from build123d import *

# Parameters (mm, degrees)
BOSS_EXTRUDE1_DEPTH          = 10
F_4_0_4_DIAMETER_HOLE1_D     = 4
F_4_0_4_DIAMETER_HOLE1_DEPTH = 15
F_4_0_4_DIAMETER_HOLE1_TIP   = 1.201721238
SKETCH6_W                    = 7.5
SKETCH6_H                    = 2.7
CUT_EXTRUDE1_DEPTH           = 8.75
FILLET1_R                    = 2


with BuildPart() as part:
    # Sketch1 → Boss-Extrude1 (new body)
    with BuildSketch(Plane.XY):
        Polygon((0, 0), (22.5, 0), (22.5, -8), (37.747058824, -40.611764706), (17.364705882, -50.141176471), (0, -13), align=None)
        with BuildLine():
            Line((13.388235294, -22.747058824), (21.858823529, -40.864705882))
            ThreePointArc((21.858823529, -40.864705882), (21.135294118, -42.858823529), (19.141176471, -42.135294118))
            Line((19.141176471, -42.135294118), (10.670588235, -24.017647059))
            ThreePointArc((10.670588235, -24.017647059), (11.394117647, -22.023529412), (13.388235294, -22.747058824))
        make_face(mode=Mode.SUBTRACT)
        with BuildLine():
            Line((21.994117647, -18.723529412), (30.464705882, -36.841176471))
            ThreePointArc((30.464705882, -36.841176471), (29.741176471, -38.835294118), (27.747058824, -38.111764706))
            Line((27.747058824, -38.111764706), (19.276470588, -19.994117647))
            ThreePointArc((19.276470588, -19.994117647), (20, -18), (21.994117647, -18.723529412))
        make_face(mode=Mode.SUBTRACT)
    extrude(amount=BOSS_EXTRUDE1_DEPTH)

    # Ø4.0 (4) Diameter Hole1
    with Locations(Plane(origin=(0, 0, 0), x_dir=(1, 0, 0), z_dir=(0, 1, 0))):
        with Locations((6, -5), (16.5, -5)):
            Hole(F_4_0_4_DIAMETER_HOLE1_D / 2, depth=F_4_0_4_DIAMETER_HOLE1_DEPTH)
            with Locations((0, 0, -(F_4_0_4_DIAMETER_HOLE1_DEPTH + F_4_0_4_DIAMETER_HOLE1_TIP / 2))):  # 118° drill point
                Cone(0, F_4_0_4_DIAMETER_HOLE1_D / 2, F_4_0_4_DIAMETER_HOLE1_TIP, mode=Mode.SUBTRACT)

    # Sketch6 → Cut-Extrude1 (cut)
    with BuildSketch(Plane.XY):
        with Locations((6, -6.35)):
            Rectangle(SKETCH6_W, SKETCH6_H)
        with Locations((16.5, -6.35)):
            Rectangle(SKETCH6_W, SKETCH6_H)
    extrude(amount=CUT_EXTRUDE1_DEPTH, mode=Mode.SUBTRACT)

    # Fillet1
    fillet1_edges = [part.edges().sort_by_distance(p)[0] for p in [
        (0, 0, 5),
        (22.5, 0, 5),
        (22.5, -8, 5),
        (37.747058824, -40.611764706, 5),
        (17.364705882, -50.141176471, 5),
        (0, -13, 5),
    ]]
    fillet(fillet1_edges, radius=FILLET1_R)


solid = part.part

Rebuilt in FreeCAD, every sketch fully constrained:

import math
import FreeCAD as App
import Part
import Sketcher
from FreeCAD import Vector


def edges_at(feature, points):
    """Names of the edges that pass closest to the given points."""
    edges = feature.Shape.Edges
    near = lambda p: min(range(len(edges)), key=lambda i: edges[i].distToShape(Part.Vertex(*p))[0])
    return sorted({f"Edge{near(p) + 1}" for p in points})

doc = App.newDocument("Part")
body = doc.addObject("PartDesign::Body", "Body")

sketch1 = body.newObject("Sketcher::SketchObject", "Sketch")
sketch1.AttachmentSupport = (doc.getObject("XY_Plane"), [""])
sketch1.MapMode = "FlatFace"
sketch1.addGeometry([
    Part.LineSegment(Vector(22.5, 0, 0), Vector(0, 0, 0)),
    Part.LineSegment(Vector(0, 0, 0), Vector(0, -13, 0)),
    Part.LineSegment(Vector(0, -13, 0), Vector(17.4, -50.1, 0)),
    Part.LineSegment(Vector(17.4, -50.1, 0), Vector(37.7, -40.6, 0)),
    Part.LineSegment(Vector(37.7, -40.6, 0), Vector(22.5, -8, 0)),
    Part.LineSegment(Vector(22.5, -8, 0), Vector(22.5, 0, 0)),
    Part.LineSegment(Vector(13.4, -22.7, 0), Vector(21.9, -40.9, 0)),
    Part.ArcOfCircle(Part.Circle(Vector(20.5, -41.5, 0), Vector(0, 0, 1), 1.5), math.radians(-155), math.radians(25)),
    Part.LineSegment(Vector(19.1, -42.1, 0), Vector(10.7, -24, 0)),
    Part.ArcOfCircle(Part.Circle(Vector(12, -23.4, 0), Vector(0, 0, 1), 1.5), math.radians(25), math.radians(205)),
    Part.LineSegment(Vector(22, -18.7, 0), Vector(30.5, -36.8, 0)),
    Part.ArcOfCircle(Part.Circle(Vector(29.1, -37.5, 0), Vector(0, 0, 1), 1.5), math.radians(-155), math.radians(25)),
    Part.LineSegment(Vector(27.7, -38.1, 0), Vector(19.3, -20, 0)),
    Part.ArcOfCircle(Part.Circle(Vector(20.6, -19.4, 0), Vector(0, 0, 1), 1.5), math.radians(25), math.radians(205)),
], False)
sketch1.addConstraint([
    Sketcher.Constraint("Coincident", 0, 2, 1, 1),
    Sketcher.Constraint("Coincident", 1, 2, 2, 1),
    Sketcher.Constraint("Coincident", 2, 2, 3, 1),
    Sketcher.Constraint("Coincident", 3, 2, 4, 1),
    Sketcher.Constraint("Coincident", 4, 2, 5, 1),
    Sketcher.Constraint("Coincident", 5, 2, 0, 1),
    Sketcher.Constraint("Tangent", 6, 2, 7, 2),
    Sketcher.Constraint("Tangent", 7, 1, 8, 1),
    Sketcher.Constraint("Tangent", 8, 2, 9, 2),
    Sketcher.Constraint("Tangent", 9, 1, 6, 1),
    Sketcher.Constraint("Tangent", 10, 2, 11, 2),
    Sketcher.Constraint("Tangent", 11, 1, 12, 1),
    Sketcher.Constraint("Tangent", 12, 2, 13, 2),
    Sketcher.Constraint("Tangent", 13, 1, 10, 1),
    Sketcher.Constraint("Horizontal", 0),
    Sketcher.Constraint("Vertical", 1),
    Sketcher.Constraint("Vertical", 5),
    Sketcher.Constraint("Coincident", 0, 2, -1, 1),
    Sketcher.Constraint("Equal", 7, 9),
    Sketcher.Constraint("Equal", 9, 11),
    Sketcher.Constraint("Equal", 11, 13),
    Sketcher.Constraint("Perpendicular", 2, 3),
    Sketcher.Constraint("Perpendicular", 3, 4),
    Sketcher.Constraint("Parallel", 4, 6),
    Sketcher.Constraint("Parallel", 8, 10),
    Sketcher.Constraint("Equal", 8, 10),
    Sketcher.Constraint("Radius", 7, 1.5),
    Sketcher.Constraint("DistanceY", 1, 2, 1, 1, 13.0),
    Sketcher.Constraint("DistanceY", 5, 1, 5, 2, 8.0),
    Sketcher.Constraint("Distance", 2, 41.0),
    Sketcher.Constraint("Distance", 4, 36.0),
    Sketcher.Constraint("Distance", 6, 20.0),
    Sketcher.Constraint("DistanceX", 0, 2, 0, 1, 22.5),
    Sketcher.Constraint("DistanceX", -1, 1, 7, 3, 20.5),
    Sketcher.Constraint("DistanceY", 7, 3, -1, 1, 41.5),
    Sketcher.Constraint("DistanceY", 11, 3, -1, 1, 37.476471),
    Sketcher.Constraint("DistanceX", -1, 1, 11, 1, 27.747059),
])
pad1 = body.newObject("PartDesign::Pad", "Pad")
pad1.Profile = sketch1
pad1.Length = 10

sketch2 = body.newObject("Sketcher::SketchObject", "Sketch001")
sketch2.AttachmentSupport = (doc.getObject("XZ_Plane"), [""])
sketch2.MapMode = "FlatFace"
sketch2.addGeometry([
    Part.Circle(Vector(6, 5, 0), Vector(0, 0, 1), 2),
    Part.Circle(Vector(16.5, 5, 0), Vector(0, 0, 1), 2),
], False)
sketch2.addConstraint([
    Sketcher.Constraint("Equal", 0, 1),
    Sketcher.Constraint("Horizontal", 0, 3, 1, 3),
    Sketcher.Constraint("Diameter", 0, 4.0),
    Sketcher.Constraint("DistanceX", -1, 1, 0, 3, 6.0),
    Sketcher.Constraint("DistanceY", -1, 1, 0, 3, 5.0),
    Sketcher.Constraint("DistanceX", -1, 1, 1, 3, 16.5),
])
doc.recompute()
hole = body.newObject("PartDesign::Hole", "Hole")
hole.Profile = sketch2
hole.ThreadType = "None"
hole.Diameter = 4
hole.DepthType = "Dimension"
hole.Depth = 15
hole.DrillPoint = "Angled"
hole.DrillPointAngle = 118
hole.Reversed = True

sketch3 = body.newObject("Sketcher::SketchObject", "Sketch002")
sketch3.AttachmentSupport = (doc.getObject("XY_Plane"), [""])
sketch3.MapMode = "FlatFace"
sketch3.addGeometry([
    Part.LineSegment(Vector(2.2, -5, 0), Vector(2.2, -7.7, 0)),
    Part.LineSegment(Vector(2.2, -7.7, 0), Vector(9.8, -7.7, 0)),
    Part.LineSegment(Vector(9.8, -7.7, 0), Vector(9.8, -5, 0)),
    Part.LineSegment(Vector(9.8, -5, 0), Vector(2.2, -5, 0)),
    Part.LineSegment(Vector(12.8, -5, 0), Vector(12.8, -7.7, 0)),
    Part.LineSegment(Vector(12.8, -7.7, 0), Vector(20.2, -7.7, 0)),
    Part.LineSegment(Vector(20.2, -7.7, 0), Vector(20.2, -5, 0)),
    Part.LineSegment(Vector(20.2, -5, 0), Vector(12.8, -5, 0)),
], False)
sketch3.addConstraint([
    Sketcher.Constraint("Coincident", 0, 2, 1, 1),
    Sketcher.Constraint("Coincident", 1, 2, 2, 1),
    Sketcher.Constraint("Coincident", 2, 2, 3, 1),
    Sketcher.Constraint("Coincident", 3, 2, 0, 1),
    Sketcher.Constraint("Coincident", 4, 2, 5, 1),
    Sketcher.Constraint("Coincident", 5, 2, 6, 1),
    Sketcher.Constraint("Coincident", 6, 2, 7, 1),
    Sketcher.Constraint("Coincident", 7, 2, 4, 1),
    Sketcher.Constraint("Vertical", 0),
    Sketcher.Constraint("Horizontal", 1),
    Sketcher.Constraint("Vertical", 2),
    Sketcher.Constraint("Horizontal", 3),
    Sketcher.Constraint("Vertical", 4),
    Sketcher.Constraint("Horizontal", 5),
    Sketcher.Constraint("Vertical", 6),
    Sketcher.Constraint("Horizontal", 7),
    Sketcher.Constraint("Horizontal", 1, 2, 4, 2),
    Sketcher.Constraint("Horizontal", 3, 2, 6, 2),
    Sketcher.Constraint("Equal", 3, 5),
    Sketcher.Constraint("DistanceX", 1, 1, 1, 2, 7.5),
    Sketcher.Constraint("DistanceY", 0, 2, 0, 1, 2.7),
    Sketcher.Constraint("DistanceY", 2, 2, -1, 1, 5.0),
    Sketcher.Constraint("DistanceX", 1, 2, 4, 2, 3.0),
    Sketcher.Constraint("DistanceX", -1, 1, 0, 2, 2.25),
])
pocket1 = body.newObject("PartDesign::Pocket", "Pocket")
pocket1.Profile = sketch3
pocket1.Length = 8.75
pocket1.Reversed = True
doc.recompute()

fillet = body.newObject("PartDesign::Fillet", "Fillet")
fillet.Base = (pocket1, edges_at(pocket1, [
    (0, 0, 5),
    (22.5, 0, 5),
    (22.5, -8, 5),
    (37.747, -40.612, 5),
    (17.365, -50.141, 5),
    (0, -13, 5),
]))
fillet.Radius = 2

doc.recompute()
